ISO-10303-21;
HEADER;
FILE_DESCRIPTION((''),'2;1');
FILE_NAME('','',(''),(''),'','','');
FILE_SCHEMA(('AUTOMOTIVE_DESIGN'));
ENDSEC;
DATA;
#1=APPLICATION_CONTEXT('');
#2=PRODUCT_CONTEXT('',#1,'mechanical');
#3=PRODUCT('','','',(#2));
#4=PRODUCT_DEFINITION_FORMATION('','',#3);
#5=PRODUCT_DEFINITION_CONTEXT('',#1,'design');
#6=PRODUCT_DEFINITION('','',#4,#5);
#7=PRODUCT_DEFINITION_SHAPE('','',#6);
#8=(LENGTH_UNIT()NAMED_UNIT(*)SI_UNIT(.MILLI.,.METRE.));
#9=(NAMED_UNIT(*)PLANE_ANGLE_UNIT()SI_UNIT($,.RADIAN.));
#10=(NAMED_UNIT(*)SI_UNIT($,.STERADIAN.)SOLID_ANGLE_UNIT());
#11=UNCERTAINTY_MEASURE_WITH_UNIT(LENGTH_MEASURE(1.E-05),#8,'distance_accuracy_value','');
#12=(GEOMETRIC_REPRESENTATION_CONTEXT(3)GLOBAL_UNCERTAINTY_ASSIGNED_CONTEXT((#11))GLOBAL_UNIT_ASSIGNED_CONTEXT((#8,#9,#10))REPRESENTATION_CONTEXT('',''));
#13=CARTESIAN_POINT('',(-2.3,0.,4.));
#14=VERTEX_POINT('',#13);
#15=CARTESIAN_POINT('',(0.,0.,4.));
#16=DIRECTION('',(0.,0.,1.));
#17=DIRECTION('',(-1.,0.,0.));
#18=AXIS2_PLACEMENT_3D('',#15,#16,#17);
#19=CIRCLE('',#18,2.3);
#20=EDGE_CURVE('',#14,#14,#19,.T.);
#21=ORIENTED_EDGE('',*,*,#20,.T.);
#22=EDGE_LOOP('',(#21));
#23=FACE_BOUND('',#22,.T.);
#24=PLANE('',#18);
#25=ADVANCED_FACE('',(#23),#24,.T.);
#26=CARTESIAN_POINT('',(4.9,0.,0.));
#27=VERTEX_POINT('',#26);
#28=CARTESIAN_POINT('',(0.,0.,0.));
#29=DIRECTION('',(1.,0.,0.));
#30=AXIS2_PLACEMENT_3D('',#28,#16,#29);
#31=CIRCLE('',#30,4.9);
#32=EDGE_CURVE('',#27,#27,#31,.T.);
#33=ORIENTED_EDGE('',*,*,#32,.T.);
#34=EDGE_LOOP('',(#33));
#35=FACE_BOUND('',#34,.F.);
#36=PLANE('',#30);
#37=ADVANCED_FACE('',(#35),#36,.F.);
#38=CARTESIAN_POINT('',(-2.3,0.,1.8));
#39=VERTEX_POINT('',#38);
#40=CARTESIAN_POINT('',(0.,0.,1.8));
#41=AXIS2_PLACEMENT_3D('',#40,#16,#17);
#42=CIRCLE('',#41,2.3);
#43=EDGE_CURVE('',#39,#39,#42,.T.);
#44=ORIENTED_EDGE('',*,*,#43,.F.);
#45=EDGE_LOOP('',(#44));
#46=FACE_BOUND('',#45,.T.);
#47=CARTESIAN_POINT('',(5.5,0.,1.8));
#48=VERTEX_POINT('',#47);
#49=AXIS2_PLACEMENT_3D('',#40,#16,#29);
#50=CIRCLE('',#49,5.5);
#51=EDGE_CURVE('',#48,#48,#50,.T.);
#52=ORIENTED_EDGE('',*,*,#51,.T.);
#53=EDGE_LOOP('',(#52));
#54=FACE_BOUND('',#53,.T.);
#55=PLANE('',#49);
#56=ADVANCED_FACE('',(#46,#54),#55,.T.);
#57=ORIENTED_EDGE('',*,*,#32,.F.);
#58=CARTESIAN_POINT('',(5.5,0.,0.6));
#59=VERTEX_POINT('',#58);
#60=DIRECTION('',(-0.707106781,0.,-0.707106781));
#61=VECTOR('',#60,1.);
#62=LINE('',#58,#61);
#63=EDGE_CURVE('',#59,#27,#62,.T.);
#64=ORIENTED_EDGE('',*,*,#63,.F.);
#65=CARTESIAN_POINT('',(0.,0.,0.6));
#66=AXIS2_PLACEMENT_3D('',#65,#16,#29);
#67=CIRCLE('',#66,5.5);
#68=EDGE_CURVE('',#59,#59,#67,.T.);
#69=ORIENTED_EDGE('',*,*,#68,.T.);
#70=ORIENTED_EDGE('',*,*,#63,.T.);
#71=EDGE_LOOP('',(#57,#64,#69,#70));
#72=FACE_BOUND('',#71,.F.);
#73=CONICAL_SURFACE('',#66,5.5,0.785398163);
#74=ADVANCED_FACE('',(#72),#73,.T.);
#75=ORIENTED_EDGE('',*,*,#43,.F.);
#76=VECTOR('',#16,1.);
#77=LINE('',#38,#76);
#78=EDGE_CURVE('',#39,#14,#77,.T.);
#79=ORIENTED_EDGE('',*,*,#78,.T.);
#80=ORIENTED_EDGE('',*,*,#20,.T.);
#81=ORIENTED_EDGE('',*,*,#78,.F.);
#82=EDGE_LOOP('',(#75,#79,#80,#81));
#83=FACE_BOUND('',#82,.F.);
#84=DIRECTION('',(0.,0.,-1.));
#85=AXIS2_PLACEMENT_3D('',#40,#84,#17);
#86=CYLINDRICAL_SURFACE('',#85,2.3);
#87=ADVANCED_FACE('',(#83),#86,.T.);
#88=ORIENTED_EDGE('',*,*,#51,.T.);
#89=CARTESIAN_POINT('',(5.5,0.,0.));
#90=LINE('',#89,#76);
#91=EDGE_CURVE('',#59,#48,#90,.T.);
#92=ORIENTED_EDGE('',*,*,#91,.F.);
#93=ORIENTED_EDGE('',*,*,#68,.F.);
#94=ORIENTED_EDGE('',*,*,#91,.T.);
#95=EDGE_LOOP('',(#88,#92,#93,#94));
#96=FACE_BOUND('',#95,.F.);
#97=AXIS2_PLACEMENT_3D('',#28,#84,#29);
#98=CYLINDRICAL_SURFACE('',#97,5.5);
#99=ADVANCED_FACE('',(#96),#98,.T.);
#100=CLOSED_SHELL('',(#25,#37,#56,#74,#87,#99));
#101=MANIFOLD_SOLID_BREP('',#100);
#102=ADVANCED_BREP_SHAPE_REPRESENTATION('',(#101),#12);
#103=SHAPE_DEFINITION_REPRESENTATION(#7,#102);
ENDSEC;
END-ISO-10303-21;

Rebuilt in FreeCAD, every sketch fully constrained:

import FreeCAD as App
import Part
import Sketcher
from FreeCAD import Vector
Q = App.Units.Quantity


def edges_at(feature, points):
    """Names of the edges that pass closest to the given points."""
    edges = feature.Shape.Edges
    near = lambda p: min(range(len(edges)), key=lambda i: edges[i].distToShape(Part.Vertex(*p))[0])
    return sorted({f"Edge{near(p) + 1}" for p in points})

doc = App.newDocument("Part")
body = doc.addObject("PartDesign::Body", "Body")

# Sketch on XY plane
sketch1 = body.newObject("Sketcher::SketchObject", "Sketch")
sketch1.AttachmentSupport = (doc.getObject("XY_Plane"), [""])
sketch1.MapMode = "FlatFace"
sketch1.addGeometry(Part.Circle(Vector(0, 0, 0), Vector(0, 0, 1), 6), False)
sketch1.addConstraint(Sketcher.Constraint("Coincident", 0, 3, -1, 1))
sketch1.addConstraint(Sketcher.Constraint("Diameter", 0, Q("11 mm")))
pad1 = body.newObject("PartDesign::Pad", "Pad")
pad1.Profile = sketch1
pad1.Length = 1.8

# Sketch on XY plane
sketch2 = body.newObject("Sketcher::SketchObject", "Sketch001")
sketch2.AttachmentSupport = (doc.getObject("XY_Plane"), [""])
sketch2.MapMode = "FlatFace"
sketch2.AttachmentOffset = App.Placement(Vector(0, 0, 1.8), App.Rotation())
sketch2.addGeometry(Part.Circle(Vector(0, 0, 0), Vector(0, 0, 1), 2.3), False)
sketch2.addConstraint(Sketcher.Constraint("Coincident", 0, 3, -1, 1))
sketch2.addConstraint(Sketcher.Constraint("Diameter", 0, Q("4.6 mm")))
pad2 = body.newObject("PartDesign::Pad", "Pad001")
pad2.Profile = sketch2
pad2.Length = 2.2
doc.recompute()

chamfer = body.newObject("PartDesign::Chamfer", "Chamfer")
chamfer.Base = (pad2, edges_at(pad2, [(-5.128, -1.989, 0)]))
chamfer.Size = 0.6

doc.recompute()
